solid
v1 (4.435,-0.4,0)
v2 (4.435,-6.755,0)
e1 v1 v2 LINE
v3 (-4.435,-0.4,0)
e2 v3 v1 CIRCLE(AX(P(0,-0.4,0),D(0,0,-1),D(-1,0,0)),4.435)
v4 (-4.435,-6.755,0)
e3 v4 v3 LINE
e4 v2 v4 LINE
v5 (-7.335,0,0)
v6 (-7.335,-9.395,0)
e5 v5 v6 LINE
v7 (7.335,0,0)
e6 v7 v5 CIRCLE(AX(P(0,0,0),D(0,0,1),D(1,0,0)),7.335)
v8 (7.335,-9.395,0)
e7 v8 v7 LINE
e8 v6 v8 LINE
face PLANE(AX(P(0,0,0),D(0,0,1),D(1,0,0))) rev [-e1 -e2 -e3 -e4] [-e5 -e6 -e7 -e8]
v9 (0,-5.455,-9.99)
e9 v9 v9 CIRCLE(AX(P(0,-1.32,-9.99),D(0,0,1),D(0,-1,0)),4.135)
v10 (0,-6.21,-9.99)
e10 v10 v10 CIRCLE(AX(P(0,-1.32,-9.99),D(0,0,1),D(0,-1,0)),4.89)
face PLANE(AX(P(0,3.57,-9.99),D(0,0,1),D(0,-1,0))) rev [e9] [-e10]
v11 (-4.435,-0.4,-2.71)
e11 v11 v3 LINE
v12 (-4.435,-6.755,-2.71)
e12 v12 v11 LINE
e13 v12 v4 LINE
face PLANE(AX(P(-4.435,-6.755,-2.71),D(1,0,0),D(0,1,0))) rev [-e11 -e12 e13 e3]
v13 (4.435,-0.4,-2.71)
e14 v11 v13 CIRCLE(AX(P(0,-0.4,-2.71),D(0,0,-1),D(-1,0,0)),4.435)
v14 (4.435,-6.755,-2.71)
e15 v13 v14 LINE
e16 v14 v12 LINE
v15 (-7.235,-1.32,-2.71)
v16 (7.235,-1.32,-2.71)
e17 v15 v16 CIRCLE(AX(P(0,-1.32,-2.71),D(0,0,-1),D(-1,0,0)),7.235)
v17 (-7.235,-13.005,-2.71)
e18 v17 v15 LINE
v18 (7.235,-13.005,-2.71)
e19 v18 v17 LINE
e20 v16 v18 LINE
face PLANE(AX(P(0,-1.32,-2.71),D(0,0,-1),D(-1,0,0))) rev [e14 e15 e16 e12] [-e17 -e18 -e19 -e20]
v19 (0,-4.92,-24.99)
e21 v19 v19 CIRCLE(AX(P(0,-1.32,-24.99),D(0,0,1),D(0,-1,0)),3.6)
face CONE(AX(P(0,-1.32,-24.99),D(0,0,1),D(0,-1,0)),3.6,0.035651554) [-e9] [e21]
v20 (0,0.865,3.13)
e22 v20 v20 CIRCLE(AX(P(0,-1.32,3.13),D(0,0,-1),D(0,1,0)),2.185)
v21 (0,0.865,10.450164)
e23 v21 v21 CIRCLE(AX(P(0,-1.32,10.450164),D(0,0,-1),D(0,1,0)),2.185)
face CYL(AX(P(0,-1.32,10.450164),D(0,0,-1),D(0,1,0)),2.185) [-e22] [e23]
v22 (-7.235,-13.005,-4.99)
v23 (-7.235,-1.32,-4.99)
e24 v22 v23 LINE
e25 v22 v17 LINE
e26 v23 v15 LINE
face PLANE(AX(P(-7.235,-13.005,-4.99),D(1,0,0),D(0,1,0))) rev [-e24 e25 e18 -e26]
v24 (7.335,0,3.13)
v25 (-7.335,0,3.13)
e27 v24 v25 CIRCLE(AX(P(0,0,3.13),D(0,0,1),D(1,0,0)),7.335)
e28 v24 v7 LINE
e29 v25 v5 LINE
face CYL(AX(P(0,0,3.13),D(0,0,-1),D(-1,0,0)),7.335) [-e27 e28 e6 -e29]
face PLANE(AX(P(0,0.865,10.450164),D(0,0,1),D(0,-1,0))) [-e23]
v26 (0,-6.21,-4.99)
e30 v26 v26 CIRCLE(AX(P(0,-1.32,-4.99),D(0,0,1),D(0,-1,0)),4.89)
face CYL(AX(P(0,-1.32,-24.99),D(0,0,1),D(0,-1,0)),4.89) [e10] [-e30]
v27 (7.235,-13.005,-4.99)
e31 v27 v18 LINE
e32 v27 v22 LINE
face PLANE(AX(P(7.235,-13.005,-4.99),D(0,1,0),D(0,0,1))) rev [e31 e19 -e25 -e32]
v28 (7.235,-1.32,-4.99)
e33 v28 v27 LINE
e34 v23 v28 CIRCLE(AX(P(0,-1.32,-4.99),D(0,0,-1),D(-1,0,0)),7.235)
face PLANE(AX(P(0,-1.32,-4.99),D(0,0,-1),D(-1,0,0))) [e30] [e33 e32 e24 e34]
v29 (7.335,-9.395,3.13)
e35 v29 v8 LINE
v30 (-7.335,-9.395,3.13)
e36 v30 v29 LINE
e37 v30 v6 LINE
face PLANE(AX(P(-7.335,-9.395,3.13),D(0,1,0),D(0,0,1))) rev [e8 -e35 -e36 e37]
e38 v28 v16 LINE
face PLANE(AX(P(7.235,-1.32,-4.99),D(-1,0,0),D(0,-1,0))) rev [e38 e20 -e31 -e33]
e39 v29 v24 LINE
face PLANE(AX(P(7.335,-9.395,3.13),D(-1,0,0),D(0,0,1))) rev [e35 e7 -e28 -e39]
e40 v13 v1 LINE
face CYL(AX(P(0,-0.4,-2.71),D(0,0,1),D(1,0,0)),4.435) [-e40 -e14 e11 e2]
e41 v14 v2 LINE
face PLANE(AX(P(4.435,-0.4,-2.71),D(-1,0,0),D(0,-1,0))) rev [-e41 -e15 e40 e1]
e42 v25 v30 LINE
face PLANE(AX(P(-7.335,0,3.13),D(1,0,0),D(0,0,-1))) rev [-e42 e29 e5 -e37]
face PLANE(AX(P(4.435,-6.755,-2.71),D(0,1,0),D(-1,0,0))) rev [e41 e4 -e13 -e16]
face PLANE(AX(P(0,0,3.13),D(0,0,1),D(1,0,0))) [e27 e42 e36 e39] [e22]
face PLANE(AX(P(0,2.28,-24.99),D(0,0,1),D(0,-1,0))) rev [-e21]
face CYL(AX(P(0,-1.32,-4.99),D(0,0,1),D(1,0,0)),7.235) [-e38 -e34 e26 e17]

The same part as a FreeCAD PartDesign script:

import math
import FreeCAD as App
import Part
import Sketcher

doc = App.newDocument("Part")
body = doc.addObject("PartDesign::Body", "Body")

# Sketch on XY plane
sketch1 = doc.addObject("Sketcher::SketchObject", "Sketch")
body.addObject(sketch1)
sketch1.AttachmentSupport = (doc.XY_Plane, [""])
sketch1.MapMode = "FlatFace"
sketch1.addGeometry(Part.LineSegment(App.Vector(-7, 0, 0), App.Vector(-7, -9, 0)), False)
sketch1.addGeometry(Part.LineSegment(App.Vector(-7, -9, 0), App.Vector(7, -9, 0)), False)
sketch1.addGeometry(Part.LineSegment(App.Vector(7, -9, 0), App.Vector(7, 0, 0)), False)
sketch1.addGeometry(Part.ArcOfCircle(Part.Circle(App.Vector(0, 0, 0), App.Vector(0, 0, 1), 7), math.radians(0), math.radians(180)), False)
sketch1.addConstraint(Sketcher.Constraint("Coincident", 0, 2, 1, 1))
sketch1.addConstraint(Sketcher.Constraint("Coincident", 1, 2, 2, 1))
sketch1.addConstraint(Sketcher.Constraint("Tangent", 2, 2, 3, 1))
sketch1.addConstraint(Sketcher.Constraint("Tangent", 3, 2, 0, 1))
sketch1.addConstraint(Sketcher.Constraint("Vertical", 0))
sketch1.addConstraint(Sketcher.Constraint("Horizontal", 1))
sketch1.addConstraint(Sketcher.Constraint("Vertical", 2))
sketch1.addConstraint(Sketcher.Constraint("Coincident", 3, 3, -1, 1))
sketch1.addConstraint(Sketcher.Constraint("Radius", 3, 7.335))
sketch1.addConstraint(Sketcher.Constraint("DistanceY", 0, 2, 0, 1, 9.395))
pad1 = doc.addObject("PartDesign::Pad", "Pad")
body.addObject(pad1)
pad1.Profile = sketch1
pad1.Length = 3.13

# Sketch on XY plane
sketch2 = doc.addObject("Sketcher::SketchObject", "Sketch001")
body.addObject(sketch2)
sketch2.AttachmentSupport = (doc.XY_Plane, [""])
sketch2.MapMode = "FlatFace"
sketch2.addGeometry(Part.LineSegment(App.Vector(4.4, -0.4, 0), App.Vector(4.4, -6.8, 0)), False)
sketch2.addGeometry(Part.LineSegment(App.Vector(4.4, -6.8, 0), App.Vector(-4.4, -6.8, 0)), False)
sketch2.addGeometry(Part.LineSegment(App.Vector(-4.4, -6.8, 0), App.Vector(-4.4, -0.4, 0)), False)
sketch2.addGeometry(Part.ArcOfCircle(Part.Circle(App.Vector(0, -0.4, 0), App.Vector(0, 0, 1), 4.4), math.radians(0), math.radians(180)), False)
sketch2.addConstraint(Sketcher.Constraint("Coincident", 0, 2, 1, 1))
sketch2.addConstraint(Sketcher.Constraint("Coincident", 1, 2, 2, 1))
sketch2.addConstraint(Sketcher.Constraint("Tangent", 2, 2, 3, 2))
sketch2.addConstraint(Sketcher.Constraint("Tangent", 3, 1, 0, 1))
sketch2.addConstraint(Sketcher.Constraint("Vertical", 0))
sketch2.addConstraint(Sketcher.Constraint("Horizontal", 1))
sketch2.addConstraint(Sketcher.Constraint("Vertical", 2))
sketch2.addConstraint(Sketcher.Constraint("PointOnObject", 3, 3, -2))
sketch2.addConstraint(Sketcher.Constraint("Radius", 3, 4.435))
sketch2.addConstraint(Sketcher.Constraint("DistanceY", 3, 3, -1, 1, 0.4))
sketch2.addConstraint(Sketcher.Constraint("DistanceY", 0, 2, 0, 1, 6.355))
pad2 = doc.addObject("PartDesign::Pad", "Pad001")
body.addObject(pad2)
pad2.Profile = sketch2
pad2.Length = 2.71
pad2.Reversed = True

# Sketch on XY plane
sketch3 = doc.addObject("Sketcher::SketchObject", "Sketch002")
body.addObject(sketch3)
sketch3.AttachmentSupport = (doc.XY_Plane, [""])
sketch3.MapMode = "FlatFace"
sketch3.AttachmentOffset = App.Placement(App.Vector(0, 0, -2.71), App.Rotation())
sketch3.addGeometry(Part.LineSegment(App.Vector(7, -13, 0), App.Vector(-7, -13, 0)), False)
sketch3.addGeometry(Part.LineSegment(App.Vector(-7, -13, 0), App.Vector(-7, -1, 0)), False)
sketch3.addGeometry(Part.ArcOfCircle(Part.Circle(App.Vector(0, -1, 0), App.Vector(0, 0, 1), 7), math.radians(0), math.radians(180)), False)
sketch3.addGeometry(Part.LineSegment(App.Vector(7, -1, 0), App.Vector(7, -13, 0)), False)
sketch3.addConstraint(Sketcher.Constraint("Coincident", 0, 2, 1, 1))
sketch3.addConstraint(Sketcher.Constraint("Tangent", 1, 2, 2, 2))
sketch3.addConstraint(Sketcher.Constraint("Tangent", 2, 1, 3, 1))
sketch3.addConstraint(Sketcher.Constraint("Coincident", 3, 2, 0, 1))
sketch3.addConstraint(Sketcher.Constraint("Horizontal", 0))
sketch3.addConstraint(Sketcher.Constraint("Vertical", 1))
sketch3.addConstraint(Sketcher.Constraint("Vertical", 3))
sketch3.addConstraint(Sketcher.Constraint("PointOnObject", 2, 3, -2))
sketch3.addConstraint(Sketcher.Constraint("Radius", 2, 7.235))
sketch3.addConstraint(Sketcher.Constraint("DistanceY", 1, 1, 1, 2, 11.685))
sketch3.addConstraint(Sketcher.Constraint("DistanceY", 2, 3, -1, 1, 1.32))
pad3 = doc.addObject("PartDesign::Pad", "Pad002")
body.addObject(pad3)
pad3.Profile = sketch3
pad3.Length = 2.28
pad3.Reversed = True

# Sketch on YZ plane
sketch4 = doc.addObject("Sketcher::SketchObject", "Sketch003")
body.addObject(sketch4)
sketch4.AttachmentSupport = (doc.YZ_Plane, [""])
sketch4.MapMode = "FlatFace"
sketch4.addGeometry(Part.LineSegment(App.Vector(3.6, -10, 0), App.Vector(3.6, -5, 0)), False)
sketch4.addGeometry(Part.LineSegment(App.Vector(3.6, -5, 0), App.Vector(-1.3, -5, 0)), False)
sketch4.addGeometry(Part.LineSegment(App.Vector(-1.3, -5, 0), App.Vector(-1.3, -25, 0)), False)
sketch4.addGeometry(Part.LineSegment(App.Vector(-1.3, -25, 0), App.Vector(2.3, -25, 0)), False)
sketch4.addGeometry(Part.LineSegment(App.Vector(2.3, -25, 0), App.Vector(2.8, -10, 0)), False)
sketch4.addGeometry(Part.LineSegment(App.Vector(2.8, -10, 0), App.Vector(3.6, -10, 0)), False)
sketch4.addGeometry(Part.LineSegment(App.Vector(-1.3, -5, 0), App.Vector(-1.3, -25, 0)), True)  # axis
sketch4.addConstraint(Sketcher.Constraint("Coincident", 0, 2, 1, 1))
sketch4.addConstraint(Sketcher.Constraint("Coincident", 1, 2, 2, 1))
sketch4.addConstraint(Sketcher.Constraint("Coincident", 2, 2, 3, 1))
sketch4.addConstraint(Sketcher.Constraint("Coincident", 3, 2, 4, 1))
sketch4.addConstraint(Sketcher.Constraint("Coincident", 4, 2, 5, 1))
sketch4.addConstraint(Sketcher.Constraint("Coincident", 5, 2, 0, 1))
sketch4.addConstraint(Sketcher.Constraint("Vertical", 0))
sketch4.addConstraint(Sketcher.Constraint("Horizontal", 1))
sketch4.addConstraint(Sketcher.Constraint("Vertical", 2))
sketch4.addConstraint(Sketcher.Constraint("Horizontal", 3))
sketch4.addConstraint(Sketcher.Constraint("Horizontal", 5))
sketch4.addConstraint(Sketcher.Constraint("Vertical", 6))
sketch4.addConstraint(Sketcher.Constraint("Coincident", 6, 1, 1, 2))
sketch4.addConstraint(Sketcher.Constraint("Horizontal", 3, 2, 6, 2))
sketch4.addConstraint(Sketcher.Constraint("DistanceY", 0, 1, 0, 2, 5.0))
sketch4.addConstraint(Sketcher.Constraint("DistanceY", 2, 2, 2, 1, 20.0))
sketch4.addConstraint(Sketcher.Constraint("DistanceX", 3, 1, 3, 2, 3.6))
sketch4.addConstraint(Sketcher.Constraint("DistanceX", 1, 2, 1, 1, 4.89))
sketch4.addConstraint(Sketcher.Constraint("DistanceX", 5, 1, 5, 2, 0.755))
sketch4.addConstraint(Sketcher.Constraint("DistanceX", -1, 1, 0, 2, 3.57))
sketch4.addConstraint(Sketcher.Constraint("DistanceY", 0, 2, -1, 1, 4.99))
revolution = doc.addObject("PartDesign::Revolution", "Revolution")
body.addObject(revolution)
revolution.Profile = sketch4
revolution.ReferenceAxis = (sketch4, ["Axis0"])
revolution.Angle = 360

# Sketch on YZ plane
sketch5 = doc.addObject("Sketcher::SketchObject", "Sketch004")
body.addObject(sketch5)
sketch5.AttachmentSupport = (doc.YZ_Plane, [""])
sketch5.MapMode = "FlatFace"
sketch5.addGeometry(Part.LineSegment(App.Vector(0.9, 10.5, 0), App.Vector(-1.3, 10.5, 0)), False)
sketch5.addGeometry(Part.LineSegment(App.Vector(-1.3, 10.5, 0), App.Vector(-1.3, 3.1, 0)), False)
sketch5.addGeometry(Part.LineSegment(App.Vector(-1.3, 3.1, 0), App.Vector(0.9, 3.1, 0)), False)
sketch5.addGeometry(Part.LineSegment(App.Vector(0.9, 3.1, 0), App.Vector(0.9, 10.5, 0)), False)
sketch5.addGeometry(Part.LineSegment(App.Vector(-1.3, 3.1, 0), App.Vector(-1.3, 10.5, 0)), True)  # axis
sketch5.addConstraint(Sketcher.Constraint("Coincident", 0, 2, 1, 1))
sketch5.addConstraint(Sketcher.Constraint("Coincident", 1, 2, 2, 1))
sketch5.addConstraint(Sketcher.Constraint("Coincident", 2, 2, 3, 1))
sketch5.addConstraint(Sketcher.Constraint("Coincident", 3, 2, 0, 1))
sketch5.addConstraint(Sketcher.Constraint("Horizontal", 0))
sketch5.addConstraint(Sketcher.Constraint("Vertical", 1))
sketch5.addConstraint(Sketcher.Constraint("Horizontal", 2))
sketch5.addConstraint(Sketcher.Constraint("Vertical", 3))
sketch5.addConstraint(Sketcher.Constraint("Vertical", 4))
sketch5.addConstraint(Sketcher.Constraint("Coincident", 4, 1, 1, 2))
sketch5.addConstraint(Sketcher.Constraint("Horizontal", 3, 2, 4, 2))
sketch5.addConstraint(Sketcher.Constraint("DistanceX", 0, 2, 0, 1, 2.185))
sketch5.addConstraint(Sketcher.Constraint("DistanceX", 0, 2, -1, 1, 1.32))
sketch5.addConstraint(Sketcher.Constraint("DistanceY", -1, 1, 1, 2, 3.13))
sketch5.addConstraint(Sketcher.Constraint("DistanceY", 1, 2, 1, 1, 7.320164))
revolution2 = doc.addObject("PartDesign::Revolution", "Revolution001")
body.addObject(revolution2)
revolution2.Profile = sketch5
revolution2.ReferenceAxis = (sketch5, ["Axis0"])
revolution2.Angle = 360

doc.recompute()
